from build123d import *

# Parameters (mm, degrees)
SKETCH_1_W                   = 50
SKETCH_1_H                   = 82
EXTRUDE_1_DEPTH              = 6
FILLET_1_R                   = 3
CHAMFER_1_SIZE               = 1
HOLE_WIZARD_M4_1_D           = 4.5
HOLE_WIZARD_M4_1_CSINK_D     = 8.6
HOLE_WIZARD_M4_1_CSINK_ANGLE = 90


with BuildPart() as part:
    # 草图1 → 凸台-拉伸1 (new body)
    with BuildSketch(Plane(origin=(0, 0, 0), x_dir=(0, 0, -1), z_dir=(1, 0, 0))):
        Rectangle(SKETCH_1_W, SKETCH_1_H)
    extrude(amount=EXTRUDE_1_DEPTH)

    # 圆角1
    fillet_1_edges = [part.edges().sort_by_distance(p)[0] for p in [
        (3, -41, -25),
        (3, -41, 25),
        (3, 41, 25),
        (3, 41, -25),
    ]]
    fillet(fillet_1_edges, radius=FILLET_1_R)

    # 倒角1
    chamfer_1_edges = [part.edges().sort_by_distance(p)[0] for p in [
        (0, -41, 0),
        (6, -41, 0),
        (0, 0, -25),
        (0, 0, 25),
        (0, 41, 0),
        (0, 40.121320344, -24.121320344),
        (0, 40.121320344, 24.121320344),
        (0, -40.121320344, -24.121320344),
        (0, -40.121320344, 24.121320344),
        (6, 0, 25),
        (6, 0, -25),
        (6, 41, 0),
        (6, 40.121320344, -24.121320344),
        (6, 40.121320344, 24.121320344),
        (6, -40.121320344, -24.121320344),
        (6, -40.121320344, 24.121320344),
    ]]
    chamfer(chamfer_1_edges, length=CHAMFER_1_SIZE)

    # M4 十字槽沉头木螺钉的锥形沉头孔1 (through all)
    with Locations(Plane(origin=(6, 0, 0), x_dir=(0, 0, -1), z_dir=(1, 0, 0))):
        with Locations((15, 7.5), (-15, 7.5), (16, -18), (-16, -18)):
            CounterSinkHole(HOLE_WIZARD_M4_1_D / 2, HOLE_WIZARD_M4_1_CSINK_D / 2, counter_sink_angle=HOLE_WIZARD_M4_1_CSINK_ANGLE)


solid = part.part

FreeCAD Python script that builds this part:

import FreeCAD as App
import Part
import Sketcher


def edges_at(feature, points):
    """Names of the edges that pass closest to the given points."""
    edges = feature.Shape.Edges
    near = lambda p: min(range(len(edges)), key=lambda i: edges[i].distToShape(Part.Vertex(*p))[0])
    return sorted({f"Edge{near(p) + 1}" for p in points})


def add_polygon(sketch, points):
    """Adds a closed chain of lines whose ends are joined by coincident constraints."""
    first, n = sketch.GeometryCount, len(points)
    for a, b in zip(points, points[1:] + points[:1]):
        sketch.addGeometry(Part.LineSegment(App.Vector(*a, 0), App.Vector(*b, 0)), False)
    for i in range(n):
        sketch.addConstraint(Sketcher.Constraint("Coincident", first + i, 2, first + (i + 1) % n, 1))

doc = App.newDocument("Part")
body = doc.addObject("PartDesign::Body", "Body")

sketch1 = body.newObject("Sketcher::SketchObject", "Sketch")
sketch1.AttachmentSupport = (doc.getObject("YZ_Plane"), [""])
sketch1.MapMode = "FlatFace"
add_polygon(sketch1, [(41, 25), (-41, 25), (-41, -25), (41, -25)])
sketch1.addConstraint(Sketcher.Constraint("Horizontal", 0))
sketch1.addConstraint(Sketcher.Constraint("Vertical", 1))
sketch1.addConstraint(Sketcher.Constraint("Horizontal", 2))
sketch1.addConstraint(Sketcher.Constraint("Vertical", 3))
sketch1.addConstraint(Sketcher.Constraint("Symmetric", 0, 2, 2, 2, -1, 1))
sketch1.addConstraint(Sketcher.Constraint("DistanceX", 0, 2, 0, 1, 82.0))
sketch1.addConstraint(Sketcher.Constraint("DistanceY", 1, 2, 1, 1, 50.0))
pad1 = body.newObject("PartDesign::Pad", "Pad")
pad1.Profile = sketch1
pad1.Length = 6
doc.recompute()

fillet = body.newObject("PartDesign::Fillet", "Fillet")
fillet.Base = (pad1, edges_at(pad1, [
    (3, -41, -25),
    (3, -41, 25),
    (3, 41, 25),
    (3, 41, -25),
]))
fillet.Radius = 3
doc.recompute()

chamfer = body.newObject("PartDesign::Chamfer", "Chamfer")
chamfer.Base = (fillet, edges_at(fillet, [
    (0, -41, 0),
    (6, -41, 0),
    (0, 0, -25),
    (0, 0, 25),
    (0, 41, 0),
    (0, 40.121, -24.121),
    (0, 40.121, 24.121),
    (0, -40.121, -24.121),
    (0, -40.121, 24.121),
    (6, 0, 25),
    (6, 0, -25),
    (6, 41, 0),
    (6, 40.121, -24.121),
    (6, 40.121, 24.121),
    (6, -40.121, -24.121),
    (6, -40.121, 24.121),
]))
chamfer.Size = 1

sketch2 = body.newObject("Sketcher::SketchObject", "Sketch001")
sketch2.AttachmentSupport = (doc.getObject("YZ_Plane"), [""])
sketch2.MapMode = "FlatFace"
sketch2.AttachmentOffset = App.Placement(App.Vector(0, 0, 6), App.Rotation())
sketch2.addGeometry(Part.Circle(App.Vector(7.5, -15, 0), App.Vector(0, 0, 1), 2.2), False)
sketch2.addGeometry(Part.Circle(App.Vector(7.5, 15, 0), App.Vector(0, 0, 1), 2.2), False)
sketch2.addGeometry(Part.Circle(App.Vector(-18, -16, 0), App.Vector(0, 0, 1), 2.2), False)
sketch2.addGeometry(Part.Circle(App.Vector(-18, 16, 0), App.Vector(0, 0, 1), 2.2), False)
sketch2.addConstraint(Sketcher.Constraint("Equal", 0, 1))
sketch2.addConstraint(Sketcher.Constraint("Equal", 1, 2))
sketch2.addConstraint(Sketcher.Constraint("Equal", 2, 3))
sketch2.addConstraint(Sketcher.Constraint("Symmetric", 0, 3, 1, 3, -1))
sketch2.addConstraint(Sketcher.Constraint("Symmetric", 2, 3, 3, 3, -1))
sketch2.addConstraint(Sketcher.Constraint("Diameter", 0, 4.5))
sketch2.addConstraint(Sketcher.Constraint("DistanceY", 0, 3, -1, 1, 15.0))
sketch2.addConstraint(Sketcher.Constraint("DistanceX", 2, 3, -1, 1, 18.0))
sketch2.addConstraint(Sketcher.Constraint("DistanceY", 2, 3, -1, 1, 16.0))
sketch2.addConstraint(Sketcher.Constraint("DistanceX", -1, 1, 0, 3, 7.5))
doc.recompute()
hole = body.newObject("PartDesign::Hole", "Hole")
hole.Profile = sketch2
hole.ThreadType = "None"
hole.Diameter = 4.5
hole.DepthType = "ThroughAll"
hole.HoleCutType = "Countersink"
hole.HoleCutDiameter = 8.6
hole.HoleCutCountersinkAngle = 90

doc.recompute()
